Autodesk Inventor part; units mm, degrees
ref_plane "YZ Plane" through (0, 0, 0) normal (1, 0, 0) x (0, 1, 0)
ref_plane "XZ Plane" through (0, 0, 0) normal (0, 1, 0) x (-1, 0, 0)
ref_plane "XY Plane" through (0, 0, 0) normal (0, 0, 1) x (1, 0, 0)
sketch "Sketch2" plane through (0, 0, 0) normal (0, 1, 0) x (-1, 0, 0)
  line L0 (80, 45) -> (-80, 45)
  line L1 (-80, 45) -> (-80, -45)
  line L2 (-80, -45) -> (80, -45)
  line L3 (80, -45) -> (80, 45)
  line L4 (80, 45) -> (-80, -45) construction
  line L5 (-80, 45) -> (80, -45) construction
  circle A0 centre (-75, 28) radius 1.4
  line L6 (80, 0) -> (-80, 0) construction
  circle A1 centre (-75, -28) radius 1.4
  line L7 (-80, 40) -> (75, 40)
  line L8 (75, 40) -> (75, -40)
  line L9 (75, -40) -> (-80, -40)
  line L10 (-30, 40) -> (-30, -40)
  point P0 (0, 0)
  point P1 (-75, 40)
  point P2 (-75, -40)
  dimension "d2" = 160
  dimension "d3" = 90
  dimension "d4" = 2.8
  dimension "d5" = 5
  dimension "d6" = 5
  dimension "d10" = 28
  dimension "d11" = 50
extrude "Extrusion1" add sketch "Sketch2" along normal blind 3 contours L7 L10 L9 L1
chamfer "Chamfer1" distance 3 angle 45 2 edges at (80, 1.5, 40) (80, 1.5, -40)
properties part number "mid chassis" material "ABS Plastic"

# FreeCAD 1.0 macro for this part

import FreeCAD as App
import Part
import Sketcher

V = App.Vector


def edges_at(feature, points):
    """Names of the edges that pass closest to the given points."""
    edges = feature.Shape.Edges
    near = lambda p: min(range(len(edges)), key=lambda i: edges[i].distToShape(Part.Vertex(*p))[0])
    return sorted({f"Edge{near(p) + 1}" for p in points})

doc = App.newDocument("Part")
body = doc.addObject("PartDesign::Body", "Body")

sketch1 = body.newObject("Sketcher::SketchObject", "Sketch")
sketch1.AttachmentSupport = (doc.getObject("XZ_Plane"), [""])
sketch1.MapMode = "FlatFace"
sketch1.addGeometry([
    Part.LineSegment(V(30, 40, 0), V(80, 40, 0)),
    Part.LineSegment(V(80, 40, 0), V(80, -40, 0)),
    Part.LineSegment(V(80, -40, 0), V(30, -40, 0)),
    Part.LineSegment(V(30, -40, 0), V(30, 40, 0)),
    Part.Circle(V(75, -28, 0), V(0, 0, 1), 1.4),
    Part.Circle(V(75, 28, 0), V(0, 0, 1), 1.4),
], False)
sketch1.addConstraint([
    Sketcher.Constraint("Coincident", 0, 2, 1, 1),
    Sketcher.Constraint("Coincident", 1, 2, 2, 1),
    Sketcher.Constraint("Coincident", 2, 2, 3, 1),
    Sketcher.Constraint("Coincident", 3, 2, 0, 1),
    Sketcher.Constraint("Horizontal", 0),
    Sketcher.Constraint("Vertical", 1),
    Sketcher.Constraint("Horizontal", 2),
    Sketcher.Constraint("Vertical", 3),
    Sketcher.Constraint("Equal", 4, 5),
    Sketcher.Constraint("Symmetric", 4, 3, 5, 3, -1),
    Sketcher.Constraint("Diameter", 4, 2.8),
    Sketcher.Constraint("DistanceX", 0, 1, 0, 2, 50.0),
    Sketcher.Constraint("DistanceY", 4, 3, -1, 1, 28.0),
    Sketcher.Constraint("DistanceX", 5, 3, 0, 2, 5.0),
    Sketcher.Constraint("DistanceY", 1, 2, 1, 1, 80.0),
    Sketcher.Constraint("DistanceX", -1, 1, 4, 3, 75.0),
    Sketcher.Constraint("DistanceY", -1, 1, 0, 2, 40.0),
])
pad1 = body.newObject("PartDesign::Pad", "Pad")
pad1.Profile = sketch1
pad1.Length = 3
pad1.Reversed = True
doc.recompute()

chamfer = body.newObject("PartDesign::Chamfer", "Chamfer")
chamfer.Base = (pad1, edges_at(pad1, [(80, 1.5, 40), (80, 1.5, -40)]))
chamfer.Size = 3

doc.recompute()
